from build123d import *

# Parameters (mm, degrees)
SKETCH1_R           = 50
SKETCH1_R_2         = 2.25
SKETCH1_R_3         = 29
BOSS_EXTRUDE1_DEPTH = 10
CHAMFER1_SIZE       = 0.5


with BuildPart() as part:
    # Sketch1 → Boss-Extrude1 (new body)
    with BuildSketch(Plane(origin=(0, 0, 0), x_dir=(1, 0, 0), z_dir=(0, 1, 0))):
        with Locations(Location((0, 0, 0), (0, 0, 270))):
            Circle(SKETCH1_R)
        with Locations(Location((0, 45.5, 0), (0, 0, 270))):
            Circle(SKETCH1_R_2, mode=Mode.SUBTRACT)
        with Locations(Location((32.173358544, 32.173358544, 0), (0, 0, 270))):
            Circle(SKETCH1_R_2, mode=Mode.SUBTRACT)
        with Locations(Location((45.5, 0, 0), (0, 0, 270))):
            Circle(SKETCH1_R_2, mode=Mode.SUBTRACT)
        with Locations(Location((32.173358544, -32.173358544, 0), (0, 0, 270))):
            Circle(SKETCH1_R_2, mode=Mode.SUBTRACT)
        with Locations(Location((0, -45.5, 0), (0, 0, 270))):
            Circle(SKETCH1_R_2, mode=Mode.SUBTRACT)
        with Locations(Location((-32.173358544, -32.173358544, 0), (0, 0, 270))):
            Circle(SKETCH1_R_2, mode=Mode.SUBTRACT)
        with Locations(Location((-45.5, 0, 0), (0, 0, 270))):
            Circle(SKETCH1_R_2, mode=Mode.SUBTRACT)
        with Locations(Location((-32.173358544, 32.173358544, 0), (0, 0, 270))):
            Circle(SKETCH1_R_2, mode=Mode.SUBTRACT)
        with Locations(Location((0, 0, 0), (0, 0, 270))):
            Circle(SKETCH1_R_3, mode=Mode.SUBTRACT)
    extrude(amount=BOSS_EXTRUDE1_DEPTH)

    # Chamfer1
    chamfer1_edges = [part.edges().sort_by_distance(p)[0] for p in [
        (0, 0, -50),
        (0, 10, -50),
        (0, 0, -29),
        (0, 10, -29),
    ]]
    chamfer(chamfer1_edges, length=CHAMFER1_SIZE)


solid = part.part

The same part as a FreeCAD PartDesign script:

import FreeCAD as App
import Part
import Sketcher
from FreeCAD import Vector
Q = App.Units.Quantity


def edges_at(feature, points):
    """Names of the edges that pass closest to the given points."""
    edges = feature.Shape.Edges
    near = lambda p: min(range(len(edges)), key=lambda i: edges[i].distToShape(Part.Vertex(*p))[0])
    return sorted({f"Edge{near(p) + 1}" for p in points})

doc = App.newDocument("Part")
params = doc.addObject("Spreadsheet::Sheet", "Params")
for row, (alias, value) in enumerate([
    ("sketch1_diameter", "100 mm"),
    ("sketch1_diameter2", "58 mm"),
    ("sketch1_diameter3", "4.5 mm"),
    ("pad1_length", "10 mm"),
    ("chamfer_size", "0.5 mm"),
], start=1):
    params.set(f"A{row}", alias)
    params.set(f"B{row}", "=" + value)
    params.setAlias(f"B{row}", alias)

body = doc.addObject("PartDesign::Body", "Body")

# Sketch on XZ plane
sketch1 = body.newObject("Sketcher::SketchObject", "Sketch")
sketch1.AttachmentSupport = (doc.getObject("XZ_Plane"), [""])
sketch1.MapMode = "FlatFace"
sketch1.addGeometry([
    Part.Circle(Vector(0, 0, 0), Vector(0, 0, 1), 50),  # 0
    Part.Circle(Vector(-32.2, -32.2, 0), Vector(0, 0, 1), 2.2),  # 1
    Part.Circle(Vector(0, -45.5, 0), Vector(0, 0, 1), 2.2),  # 2
    Part.Circle(Vector(-45.5, 0, 0), Vector(0, 0, 1), 2.2),  # 3
    Part.Circle(Vector(-32.2, 32.2, 0), Vector(0, 0, 1), 2.2),  # 4
    Part.Circle(Vector(32.2, -32.2, 0), Vector(0, 0, 1), 2.2),  # 5
    Part.Circle(Vector(45.5, 0, 0), Vector(0, 0, 1), 2.2),  # 6
    Part.Circle(Vector(0, 0, 0), Vector(0, 0, 1), 29),  # 7
    Part.Circle(Vector(0, 45.5, 0), Vector(0, 0, 1), 2.2),  # 8
    Part.Circle(Vector(32.2, 32.2, 0), Vector(0, 0, 1), 2.2),  # 9
], False)
sketch1.addConstraint([
    Sketcher.Constraint("Coincident", 0, 3, -1, 1),
    Sketcher.Constraint("Coincident", 7, 3, -1, 1),
    Sketcher.Constraint("Equal", 1, 2),
    Sketcher.Constraint("Equal", 2, 3),
    Sketcher.Constraint("Equal", 3, 4),
    Sketcher.Constraint("Equal", 4, 5),
    Sketcher.Constraint("Equal", 5, 6),
    Sketcher.Constraint("Equal", 6, 8),
    Sketcher.Constraint("Equal", 8, 9),
    Sketcher.Constraint("Symmetric", 4, 3, 5, 3, -1, 1),
    Sketcher.Constraint("Symmetric", 3, 3, 6, 3, -1, 1),
    Sketcher.Constraint("Symmetric", 2, 3, 8, 3, -1, 1),
    Sketcher.Constraint("Symmetric", 1, 3, 9, 3, -1, 1),
    Sketcher.Constraint("Symmetric", 1, 3, 5, 3, -2),
    Sketcher.Constraint("PointOnObject", 2, 3, -2),
    Sketcher.Constraint("PointOnObject", 3, 3, -1),
    Sketcher.Constraint("Diameter", 0, Q("100 mm")),
    Sketcher.Constraint("Diameter", 7, Q("58 mm")),
    Sketcher.Constraint("Diameter", 1, Q("4.5 mm")),
    Sketcher.Constraint("DistanceY", 2, 3, -1, 1, Q("45.5 mm")),
    Sketcher.Constraint("DistanceX", 3, 3, -1, 1, Q("45.5 mm")),
    Sketcher.Constraint("DistanceX", 1, 3, -1, 1, Q("32.173359 mm")),
    Sketcher.Constraint("DistanceY", 1, 3, -1, 1, Q("32.173359 mm")),
])
sketch1.setExpression("Constraints[16]", "Params.sketch1_diameter")
sketch1.setExpression("Constraints[17]", "Params.sketch1_diameter2")
sketch1.setExpression("Constraints[18]", "Params.sketch1_diameter3")
pad1 = body.newObject("PartDesign::Pad", "Pad")
pad1.Profile = sketch1
pad1.setExpression("Length", "Params.pad1_length")
pad1.Reversed = True
doc.recompute()

chamfer = body.newObject("PartDesign::Chamfer", "Chamfer")
chamfer.Base = (pad1, edges_at(pad1, [
    (0, 0, -50),
    (0, 10, -50),
    (0, 0, -29),
    (0, 10, -29),
]))
chamfer.setExpression("Size", "Params.chamfer_size")

doc.recompute()
